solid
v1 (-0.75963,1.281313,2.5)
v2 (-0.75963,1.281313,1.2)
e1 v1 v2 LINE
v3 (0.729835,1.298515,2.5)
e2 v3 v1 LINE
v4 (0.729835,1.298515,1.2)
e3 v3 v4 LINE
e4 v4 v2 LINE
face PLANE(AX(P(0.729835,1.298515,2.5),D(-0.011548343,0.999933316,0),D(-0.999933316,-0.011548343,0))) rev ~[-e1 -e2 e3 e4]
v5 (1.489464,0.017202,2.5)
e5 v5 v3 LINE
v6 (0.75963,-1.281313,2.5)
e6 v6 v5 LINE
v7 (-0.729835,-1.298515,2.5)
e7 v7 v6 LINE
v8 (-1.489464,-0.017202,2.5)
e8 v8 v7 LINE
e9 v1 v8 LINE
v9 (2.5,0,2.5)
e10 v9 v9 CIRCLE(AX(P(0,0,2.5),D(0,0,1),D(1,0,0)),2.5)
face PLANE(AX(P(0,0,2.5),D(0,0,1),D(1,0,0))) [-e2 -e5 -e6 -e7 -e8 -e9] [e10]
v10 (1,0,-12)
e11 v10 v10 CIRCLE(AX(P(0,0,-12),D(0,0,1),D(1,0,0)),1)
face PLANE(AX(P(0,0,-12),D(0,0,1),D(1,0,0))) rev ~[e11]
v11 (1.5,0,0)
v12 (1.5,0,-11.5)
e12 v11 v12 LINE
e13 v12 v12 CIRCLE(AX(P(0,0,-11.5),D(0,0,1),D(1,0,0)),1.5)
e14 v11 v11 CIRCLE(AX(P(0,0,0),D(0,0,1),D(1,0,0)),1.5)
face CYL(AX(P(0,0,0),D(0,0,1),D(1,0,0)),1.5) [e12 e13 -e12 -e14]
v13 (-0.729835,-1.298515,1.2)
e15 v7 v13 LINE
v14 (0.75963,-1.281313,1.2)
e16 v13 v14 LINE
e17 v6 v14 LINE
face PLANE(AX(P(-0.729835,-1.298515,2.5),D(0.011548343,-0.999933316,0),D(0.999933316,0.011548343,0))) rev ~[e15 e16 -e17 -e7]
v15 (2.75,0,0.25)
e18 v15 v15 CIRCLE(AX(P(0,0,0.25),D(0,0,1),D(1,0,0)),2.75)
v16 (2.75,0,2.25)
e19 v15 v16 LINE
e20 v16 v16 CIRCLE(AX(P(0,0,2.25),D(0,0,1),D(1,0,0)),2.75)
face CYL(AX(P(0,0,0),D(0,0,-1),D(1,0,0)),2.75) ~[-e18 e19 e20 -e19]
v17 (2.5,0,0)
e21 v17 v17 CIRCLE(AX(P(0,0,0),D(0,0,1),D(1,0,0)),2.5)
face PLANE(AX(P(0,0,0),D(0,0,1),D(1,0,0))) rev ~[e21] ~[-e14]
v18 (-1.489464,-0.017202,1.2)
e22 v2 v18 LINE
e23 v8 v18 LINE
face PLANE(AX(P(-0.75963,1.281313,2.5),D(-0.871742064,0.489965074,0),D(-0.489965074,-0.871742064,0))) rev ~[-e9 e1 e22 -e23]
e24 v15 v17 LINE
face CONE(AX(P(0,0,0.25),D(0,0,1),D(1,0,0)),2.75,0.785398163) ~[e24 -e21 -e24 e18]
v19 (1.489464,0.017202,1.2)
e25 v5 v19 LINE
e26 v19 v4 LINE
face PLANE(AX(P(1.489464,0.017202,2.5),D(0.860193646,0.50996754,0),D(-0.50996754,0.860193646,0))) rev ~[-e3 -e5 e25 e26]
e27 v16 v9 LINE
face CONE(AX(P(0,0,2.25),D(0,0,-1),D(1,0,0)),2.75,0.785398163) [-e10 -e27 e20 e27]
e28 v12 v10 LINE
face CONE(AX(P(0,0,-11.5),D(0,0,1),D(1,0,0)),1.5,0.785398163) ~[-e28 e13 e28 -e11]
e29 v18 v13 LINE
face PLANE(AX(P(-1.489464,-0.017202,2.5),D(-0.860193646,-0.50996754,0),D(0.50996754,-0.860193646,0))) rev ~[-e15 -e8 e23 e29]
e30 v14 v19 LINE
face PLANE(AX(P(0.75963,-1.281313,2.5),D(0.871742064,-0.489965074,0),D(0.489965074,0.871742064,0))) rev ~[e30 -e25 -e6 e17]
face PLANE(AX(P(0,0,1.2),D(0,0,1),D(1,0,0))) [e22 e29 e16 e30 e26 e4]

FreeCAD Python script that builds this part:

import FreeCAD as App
import Part
import Sketcher
Q = App.Units.Quantity


def edges_at(feature, points):
    """Names of the edges that pass closest to the given points."""
    edges = feature.Shape.Edges
    near = lambda p: min(range(len(edges)), key=lambda i: edges[i].distToShape(Part.Vertex(*p))[0])
    return sorted({f"Edge{near(p) + 1}" for p in points})


def add_polygon(sketch, points):
    """Adds a closed chain of lines whose ends are joined by coincident constraints."""
    first, n = sketch.GeometryCount, len(points)
    for a, b in zip(points, points[1:] + points[:1]):
        sketch.addGeometry(Part.LineSegment(App.Vector(*a, 0), App.Vector(*b, 0)), False)
    for i in range(n):
        sketch.addConstraint(Sketcher.Constraint("Coincident", first + i, 2, first + (i + 1) % n, 1))

doc = App.newDocument("Part")
body = doc.addObject("PartDesign::Body", "Body")

sketch1 = doc.addObject("Sketcher::SketchObject", "Sketch")
body.addObject(sketch1)
sketch1.AttachmentSupport = (doc.XY_Plane, [""])
sketch1.MapMode = "FlatFace"
sketch1.addGeometry(Part.Circle(App.Vector(0, 0, 0), App.Vector(0, 0, 1), 1.5), False)
sketch1.addConstraint([
    Sketcher.Constraint("Coincident", 0, 3, -1, 1),
    Sketcher.Constraint("Diameter", 0, Q("3 mm")),
])
pad1 = doc.addObject("PartDesign::Pad", "Pad")
body.addObject(pad1)
pad1.Profile = sketch1
pad1.Length = 12
pad1.Reversed = True
doc.recompute()

chamfer = doc.addObject("PartDesign::Chamfer", "Chamfer")
body.addObject(chamfer)
chamfer.Base = (pad1, edges_at(pad1, [(-1.5, 0, -12)]))
chamfer.Size = 0.5

sketch2 = doc.addObject("Sketcher::SketchObject", "Sketch001")
body.addObject(sketch2)
sketch2.AttachmentSupport = (doc.XY_Plane, [""])
sketch2.MapMode = "FlatFace"
sketch2.addGeometry(Part.Circle(App.Vector(0, 0, 0), App.Vector(0, 0, 1), 2.8), False)
sketch2.addConstraint([
    Sketcher.Constraint("Coincident", 0, 3, -1, 1),
    Sketcher.Constraint("Diameter", 0, Q("5.5 mm")),
])
pad2 = doc.addObject("PartDesign::Pad", "Pad001")
body.addObject(pad2)
pad2.Profile = sketch2
pad2.Length = 2.5
doc.recompute()

chamfer2 = doc.addObject("PartDesign::Chamfer", "Chamfer001")
body.addObject(chamfer2)
chamfer2.Base = (pad2, edges_at(pad2, [(-2.75, 0, 2.5), (-2.75, 0, 0)]))
chamfer2.Size = 0.25

sketch3 = doc.addObject("Sketcher::SketchObject", "Sketch002")
body.addObject(sketch3)
sketch3.AttachmentSupport = (doc.XY_Plane, [""])
sketch3.MapMode = "FlatFace"
sketch3.AttachmentOffset = App.Placement(App.Vector(0, 0, 2.5), App.Rotation())
add_polygon(sketch3, [(0.8, -1.3), (1.5, 0), (0.7, 1.3), (-0.8, 1.3), (-1.5, 0), (-0.7, -1.3)])
sketch3.addConstraint([
    Sketcher.Constraint("Symmetric", 0, 2, 3, 2, -1, 1),
    Sketcher.Constraint("Symmetric", 1, 2, 4, 2, -1, 1),
    Sketcher.Constraint("Symmetric", 2, 2, 5, 2, -1, 1),
    Sketcher.Constraint("Equal", 0, 1),
    Sketcher.Constraint("Equal", 1, 2),
    Sketcher.Constraint("DistanceY", -1, 1, 0, 2, Q("0.017202 mm")),
    Sketcher.Constraint("DistanceX", 3, 2, 1, 2, Q("2.219299 mm")),
    Sketcher.Constraint("DistanceX", 2, 2, -1, 1, Q("0.75963 mm")),
    Sketcher.Constraint("DistanceX", 1, 2, 0, 2, Q("0.759629 mm")),
])
pocket1 = doc.addObject("PartDesign::Pocket", "Pocket")
body.addObject(pocket1)
pocket1.Profile = sketch3
pocket1.Length = 1.3

doc.recompute()
